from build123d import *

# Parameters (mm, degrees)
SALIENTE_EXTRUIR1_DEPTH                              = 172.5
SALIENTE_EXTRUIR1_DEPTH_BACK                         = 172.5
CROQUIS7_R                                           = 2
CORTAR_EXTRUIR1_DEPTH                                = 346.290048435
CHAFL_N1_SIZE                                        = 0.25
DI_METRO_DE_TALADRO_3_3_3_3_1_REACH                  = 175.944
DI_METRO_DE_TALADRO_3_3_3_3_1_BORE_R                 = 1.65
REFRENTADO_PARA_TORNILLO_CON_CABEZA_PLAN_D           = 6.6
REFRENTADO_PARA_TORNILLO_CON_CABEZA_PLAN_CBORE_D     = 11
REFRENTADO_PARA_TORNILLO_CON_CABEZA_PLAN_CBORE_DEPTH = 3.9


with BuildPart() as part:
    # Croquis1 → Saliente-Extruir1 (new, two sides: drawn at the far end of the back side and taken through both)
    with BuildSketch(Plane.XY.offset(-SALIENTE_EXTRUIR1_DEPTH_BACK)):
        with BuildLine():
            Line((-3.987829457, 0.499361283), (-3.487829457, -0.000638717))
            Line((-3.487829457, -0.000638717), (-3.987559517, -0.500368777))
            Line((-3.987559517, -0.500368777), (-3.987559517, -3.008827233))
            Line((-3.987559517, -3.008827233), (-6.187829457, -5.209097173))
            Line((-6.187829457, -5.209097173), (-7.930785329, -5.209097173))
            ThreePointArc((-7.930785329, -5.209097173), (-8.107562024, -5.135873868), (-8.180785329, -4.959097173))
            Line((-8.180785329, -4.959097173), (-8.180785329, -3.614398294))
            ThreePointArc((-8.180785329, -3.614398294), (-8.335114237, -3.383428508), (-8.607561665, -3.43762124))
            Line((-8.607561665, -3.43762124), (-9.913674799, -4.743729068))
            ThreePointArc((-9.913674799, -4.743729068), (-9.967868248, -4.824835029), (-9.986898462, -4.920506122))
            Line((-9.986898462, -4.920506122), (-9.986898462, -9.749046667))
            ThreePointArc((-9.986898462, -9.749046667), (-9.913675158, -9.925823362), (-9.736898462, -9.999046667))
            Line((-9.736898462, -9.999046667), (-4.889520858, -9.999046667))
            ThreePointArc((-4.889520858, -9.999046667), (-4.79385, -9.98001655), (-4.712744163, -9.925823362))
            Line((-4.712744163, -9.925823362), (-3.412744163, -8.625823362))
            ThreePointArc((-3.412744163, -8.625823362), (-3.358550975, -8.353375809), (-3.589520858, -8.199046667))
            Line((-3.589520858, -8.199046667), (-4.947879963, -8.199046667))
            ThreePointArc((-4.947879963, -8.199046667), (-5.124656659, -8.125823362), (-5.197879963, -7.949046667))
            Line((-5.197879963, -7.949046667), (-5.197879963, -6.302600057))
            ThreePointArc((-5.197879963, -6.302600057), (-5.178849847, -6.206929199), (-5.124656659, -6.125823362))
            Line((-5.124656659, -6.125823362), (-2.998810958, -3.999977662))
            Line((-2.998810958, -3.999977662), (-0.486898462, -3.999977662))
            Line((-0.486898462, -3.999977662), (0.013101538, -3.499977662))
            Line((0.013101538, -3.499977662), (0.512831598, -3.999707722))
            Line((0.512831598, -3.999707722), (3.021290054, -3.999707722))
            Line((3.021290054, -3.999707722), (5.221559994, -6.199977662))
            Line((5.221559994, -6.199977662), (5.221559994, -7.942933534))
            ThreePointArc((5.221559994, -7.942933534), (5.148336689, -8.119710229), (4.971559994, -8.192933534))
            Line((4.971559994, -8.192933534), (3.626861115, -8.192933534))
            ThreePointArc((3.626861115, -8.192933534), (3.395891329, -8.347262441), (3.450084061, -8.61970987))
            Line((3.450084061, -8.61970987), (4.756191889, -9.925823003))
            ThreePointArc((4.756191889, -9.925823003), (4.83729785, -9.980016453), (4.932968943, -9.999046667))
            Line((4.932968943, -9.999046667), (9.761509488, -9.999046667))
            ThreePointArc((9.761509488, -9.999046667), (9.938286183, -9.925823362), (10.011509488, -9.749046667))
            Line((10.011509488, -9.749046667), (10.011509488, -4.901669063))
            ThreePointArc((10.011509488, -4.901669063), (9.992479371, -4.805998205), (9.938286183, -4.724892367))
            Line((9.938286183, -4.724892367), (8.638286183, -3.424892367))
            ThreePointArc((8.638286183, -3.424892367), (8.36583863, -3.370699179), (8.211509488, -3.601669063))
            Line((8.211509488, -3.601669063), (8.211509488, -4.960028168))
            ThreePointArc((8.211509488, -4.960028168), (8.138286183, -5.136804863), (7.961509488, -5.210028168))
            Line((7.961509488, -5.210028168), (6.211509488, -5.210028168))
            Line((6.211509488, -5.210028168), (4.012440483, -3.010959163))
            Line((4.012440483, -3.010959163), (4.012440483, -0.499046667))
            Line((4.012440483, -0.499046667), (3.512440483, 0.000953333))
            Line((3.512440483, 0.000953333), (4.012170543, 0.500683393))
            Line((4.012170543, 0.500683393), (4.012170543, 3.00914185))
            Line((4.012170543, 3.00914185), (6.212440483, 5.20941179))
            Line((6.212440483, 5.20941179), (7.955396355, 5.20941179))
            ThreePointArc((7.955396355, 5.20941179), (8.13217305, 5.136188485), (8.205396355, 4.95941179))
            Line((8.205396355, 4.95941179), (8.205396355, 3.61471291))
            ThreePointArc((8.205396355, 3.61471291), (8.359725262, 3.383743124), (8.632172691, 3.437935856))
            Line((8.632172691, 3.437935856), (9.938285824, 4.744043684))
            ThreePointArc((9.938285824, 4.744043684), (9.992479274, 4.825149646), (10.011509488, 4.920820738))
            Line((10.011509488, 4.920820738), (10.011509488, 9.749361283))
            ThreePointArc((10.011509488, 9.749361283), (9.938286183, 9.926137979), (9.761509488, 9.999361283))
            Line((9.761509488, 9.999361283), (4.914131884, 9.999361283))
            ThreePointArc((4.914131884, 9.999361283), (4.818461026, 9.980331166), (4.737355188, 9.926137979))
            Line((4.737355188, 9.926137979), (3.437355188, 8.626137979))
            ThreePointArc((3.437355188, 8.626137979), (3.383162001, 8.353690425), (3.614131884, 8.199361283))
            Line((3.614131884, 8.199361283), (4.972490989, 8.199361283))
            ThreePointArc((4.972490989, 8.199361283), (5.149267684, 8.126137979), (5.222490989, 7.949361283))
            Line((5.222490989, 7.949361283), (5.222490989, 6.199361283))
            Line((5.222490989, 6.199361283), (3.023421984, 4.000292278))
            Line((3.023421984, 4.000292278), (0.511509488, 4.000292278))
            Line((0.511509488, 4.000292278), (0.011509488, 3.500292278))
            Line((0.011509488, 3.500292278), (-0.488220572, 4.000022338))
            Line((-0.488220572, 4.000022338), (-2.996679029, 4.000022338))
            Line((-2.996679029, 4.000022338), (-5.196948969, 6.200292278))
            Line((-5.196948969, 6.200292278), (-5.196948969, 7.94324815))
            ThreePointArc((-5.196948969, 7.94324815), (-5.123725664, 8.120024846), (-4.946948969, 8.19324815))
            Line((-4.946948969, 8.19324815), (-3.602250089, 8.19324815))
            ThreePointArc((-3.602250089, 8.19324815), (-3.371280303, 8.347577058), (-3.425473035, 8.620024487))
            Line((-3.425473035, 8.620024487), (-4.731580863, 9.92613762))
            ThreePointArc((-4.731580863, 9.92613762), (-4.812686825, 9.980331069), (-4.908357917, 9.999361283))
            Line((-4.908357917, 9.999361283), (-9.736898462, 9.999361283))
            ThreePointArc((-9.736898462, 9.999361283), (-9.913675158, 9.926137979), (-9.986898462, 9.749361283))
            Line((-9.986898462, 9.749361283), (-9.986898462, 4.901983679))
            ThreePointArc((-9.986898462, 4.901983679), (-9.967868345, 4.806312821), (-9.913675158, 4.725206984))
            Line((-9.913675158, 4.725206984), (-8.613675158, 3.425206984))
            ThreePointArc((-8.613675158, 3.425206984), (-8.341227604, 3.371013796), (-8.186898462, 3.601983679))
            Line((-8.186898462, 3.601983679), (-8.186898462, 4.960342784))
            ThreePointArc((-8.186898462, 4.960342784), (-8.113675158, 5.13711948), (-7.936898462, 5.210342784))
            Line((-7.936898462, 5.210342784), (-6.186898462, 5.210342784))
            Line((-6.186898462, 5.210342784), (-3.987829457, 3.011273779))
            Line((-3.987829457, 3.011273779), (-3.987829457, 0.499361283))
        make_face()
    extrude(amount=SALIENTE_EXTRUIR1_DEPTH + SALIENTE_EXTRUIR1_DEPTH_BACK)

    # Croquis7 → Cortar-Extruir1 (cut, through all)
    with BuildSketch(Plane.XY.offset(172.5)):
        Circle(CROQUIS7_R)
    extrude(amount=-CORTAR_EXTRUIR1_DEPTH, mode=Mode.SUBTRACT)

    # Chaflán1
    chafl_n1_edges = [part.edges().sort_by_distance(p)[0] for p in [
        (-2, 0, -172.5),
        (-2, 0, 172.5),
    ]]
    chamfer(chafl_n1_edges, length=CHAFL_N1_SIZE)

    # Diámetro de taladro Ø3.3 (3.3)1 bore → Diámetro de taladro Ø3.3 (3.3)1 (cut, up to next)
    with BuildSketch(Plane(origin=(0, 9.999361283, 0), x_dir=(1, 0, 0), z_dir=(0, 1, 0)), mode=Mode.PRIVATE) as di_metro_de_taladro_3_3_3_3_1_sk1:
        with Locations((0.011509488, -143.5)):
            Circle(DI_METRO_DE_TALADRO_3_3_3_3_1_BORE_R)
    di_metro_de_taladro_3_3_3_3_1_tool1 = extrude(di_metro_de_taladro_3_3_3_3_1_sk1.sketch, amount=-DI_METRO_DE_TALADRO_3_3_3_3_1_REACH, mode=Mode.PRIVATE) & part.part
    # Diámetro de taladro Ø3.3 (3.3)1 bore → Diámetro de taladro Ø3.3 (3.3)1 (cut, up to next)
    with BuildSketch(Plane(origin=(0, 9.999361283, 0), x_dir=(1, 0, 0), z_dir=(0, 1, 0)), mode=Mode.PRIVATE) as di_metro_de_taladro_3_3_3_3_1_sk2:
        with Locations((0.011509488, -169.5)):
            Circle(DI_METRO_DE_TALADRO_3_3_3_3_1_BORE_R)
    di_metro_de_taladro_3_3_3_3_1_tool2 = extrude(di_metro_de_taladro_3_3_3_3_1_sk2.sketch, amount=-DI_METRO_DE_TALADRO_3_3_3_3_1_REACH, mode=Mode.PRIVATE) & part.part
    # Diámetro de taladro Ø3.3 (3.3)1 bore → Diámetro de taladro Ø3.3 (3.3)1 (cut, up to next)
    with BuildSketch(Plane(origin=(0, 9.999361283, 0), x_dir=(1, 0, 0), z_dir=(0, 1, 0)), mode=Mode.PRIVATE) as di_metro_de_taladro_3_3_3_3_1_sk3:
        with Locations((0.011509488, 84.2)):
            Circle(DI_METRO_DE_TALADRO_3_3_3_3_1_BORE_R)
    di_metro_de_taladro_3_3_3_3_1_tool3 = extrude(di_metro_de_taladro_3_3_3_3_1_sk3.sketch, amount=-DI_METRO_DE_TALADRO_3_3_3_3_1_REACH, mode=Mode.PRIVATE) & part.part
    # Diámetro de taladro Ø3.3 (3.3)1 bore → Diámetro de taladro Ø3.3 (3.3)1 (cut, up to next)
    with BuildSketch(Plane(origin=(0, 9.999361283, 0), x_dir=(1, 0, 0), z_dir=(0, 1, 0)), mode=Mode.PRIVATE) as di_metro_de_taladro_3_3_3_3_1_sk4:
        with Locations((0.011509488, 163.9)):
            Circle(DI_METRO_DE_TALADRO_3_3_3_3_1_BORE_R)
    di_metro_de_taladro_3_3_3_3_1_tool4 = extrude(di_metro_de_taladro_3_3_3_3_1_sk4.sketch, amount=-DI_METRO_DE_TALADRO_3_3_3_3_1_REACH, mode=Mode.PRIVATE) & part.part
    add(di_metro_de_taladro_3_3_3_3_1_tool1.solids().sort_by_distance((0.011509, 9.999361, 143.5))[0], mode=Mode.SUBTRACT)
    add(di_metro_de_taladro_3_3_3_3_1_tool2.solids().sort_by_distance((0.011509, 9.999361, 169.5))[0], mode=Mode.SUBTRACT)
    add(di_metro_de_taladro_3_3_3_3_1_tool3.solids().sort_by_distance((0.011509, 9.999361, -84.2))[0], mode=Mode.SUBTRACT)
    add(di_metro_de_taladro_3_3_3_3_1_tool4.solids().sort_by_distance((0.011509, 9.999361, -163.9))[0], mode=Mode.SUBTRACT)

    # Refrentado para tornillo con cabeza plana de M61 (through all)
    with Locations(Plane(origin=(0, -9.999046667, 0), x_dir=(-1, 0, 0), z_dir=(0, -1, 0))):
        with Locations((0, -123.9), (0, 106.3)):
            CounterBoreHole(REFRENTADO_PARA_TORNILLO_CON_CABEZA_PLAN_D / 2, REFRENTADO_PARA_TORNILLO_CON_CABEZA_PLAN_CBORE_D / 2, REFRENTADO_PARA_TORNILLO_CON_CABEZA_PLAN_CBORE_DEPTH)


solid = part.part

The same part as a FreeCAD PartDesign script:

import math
import FreeCAD as App
import Part
import Sketcher
from FreeCAD import Vector
Q = App.Units.Quantity


def edges_at(feature, points):
    """Names of the edges that pass closest to the given points."""
    edges = feature.Shape.Edges
    near = lambda p: min(range(len(edges)), key=lambda i: edges[i].distToShape(Part.Vertex(*p))[0])
    return sorted({f"Edge{near(p) + 1}" for p in points})

doc = App.newDocument("Part")
body = doc.addObject("PartDesign::Body", "Body")

# Sketch on XY plane
sketch1 = doc.addObject("Sketcher::SketchObject", "Sketch")
body.addObject(sketch1)
sketch1.AttachmentSupport = (doc.XY_Plane, [""])
sketch1.MapMode = "FlatFace"
sketch1.addGeometry(Part.LineSegment(Vector(-3.987829, 0.499361, 0), Vector(-3.487829, -0.000639, 0)), False)
sketch1.addGeometry(Part.LineSegment(Vector(-3.487829, -0.000639, 0), Vector(-3.98756, -0.500369, 0)), False)
sketch1.addGeometry(Part.LineSegment(Vector(-3.98756, -0.500369, 0), Vector(-3.98756, -3.008827, 0)), False)
sketch1.addGeometry(Part.LineSegment(Vector(-3.98756, -3.008827, 0), Vector(-6.187829, -5.209097, 0)), False)
sketch1.addGeometry(Part.LineSegment(Vector(-6.187829, -5.209097, 0), Vector(-7.930785, -5.209097, 0)), False)
sketch1.addGeometry(Part.ArcOfCircle(Part.Circle(Vector(-7.930785, -4.959097, 0), Vector(0, 0, 1), 0.25), math.radians(-180), math.radians(-90)), False)
sketch1.addGeometry(Part.LineSegment(Vector(-8.180785, -4.959097, 0), Vector(-8.180785, -3.614398, 0)), False)
sketch1.addGeometry(Part.ArcOfCircle(Part.Circle(Vector(-8.430785, -3.614398, 0), Vector(0, 0, 1), 0.25), math.radians(0), math.radians(134.999884)), False)
sketch1.addGeometry(Part.LineSegment(Vector(-8.607562, -3.437621, 0), Vector(-9.913675, -4.743729, 0)), False)
sketch1.addGeometry(Part.ArcOfCircle(Part.Circle(Vector(-9.736898, -4.920506, 0), Vector(0, 0, 1), 0.25), math.radians(134.999884), math.radians(180)), False)
sketch1.addGeometry(Part.LineSegment(Vector(-9.986898, -4.920506, 0), Vector(-9.986898, -9.749047, 0)), False)
sketch1.addGeometry(Part.ArcOfCircle(Part.Circle(Vector(-9.736898, -9.749047, 0), Vector(0, 0, 1), 0.25), math.radians(180), math.radians(270)), False)
sketch1.addGeometry(Part.LineSegment(Vector(-9.736898, -9.999047, 0), Vector(-4.889521, -9.999047, 0)), False)
sketch1.addGeometry(Part.ArcOfCircle(Part.Circle(Vector(-4.889521, -9.749047, 0), Vector(0, 0, 1), 0.25), math.radians(-90), math.radians(-45)), False)
sketch1.addGeometry(Part.LineSegment(Vector(-4.712744, -9.925823, 0), Vector(-3.412744, -8.625823, 0)), False)
sketch1.addGeometry(Part.ArcOfCircle(Part.Circle(Vector(-3.589521, -8.449047, 0), Vector(0, 0, 1), 0.25), math.radians(-45), math.radians(90)), False)
sketch1.addGeometry(Part.LineSegment(Vector(-3.589521, -8.199047, 0), Vector(-4.94788, -8.199047, 0)), False)
sketch1.addGeometry(Part.ArcOfCircle(Part.Circle(Vector(-4.94788, -7.949047, 0), Vector(0, 0, 1), 0.25), math.radians(180), math.radians(270)), False)
sketch1.addGeometry(Part.LineSegment(Vector(-5.19788, -7.949047, 0), Vector(-5.19788, -6.3026, 0)), False)
sketch1.addGeometry(Part.ArcOfCircle(Part.Circle(Vector(-4.94788, -6.3026, 0), Vector(0, 0, 1), 0.25), math.radians(135), math.radians(180.000001)), False)
sketch1.addGeometry(Part.LineSegment(Vector(-5.124657, -6.125823, 0), Vector(-2.998811, -3.999978, 0)), False)
sketch1.addGeometry(Part.LineSegment(Vector(-2.998811, -3.999978, 0), Vector(-0.486898, -3.999978, 0)), False)
sketch1.addGeometry(Part.LineSegment(Vector(-0.486898, -3.999978, 0), Vector(0.013102, -3.499978, 0)), False)
sketch1.addGeometry(Part.LineSegment(Vector(0.013102, -3.499978, 0), Vector(0.512832, -3.999708, 0)), False)
sketch1.addGeometry(Part.LineSegment(Vector(0.512832, -3.999708, 0), Vector(3.02129, -3.999708, 0)), False)
sketch1.addGeometry(Part.LineSegment(Vector(3.02129, -3.999708, 0), Vector(5.22156, -6.199978, 0)), False)
sketch1.addGeometry(Part.LineSegment(Vector(5.22156, -6.199978, 0), Vector(5.22156, -7.942934, 0)), False)
sketch1.addGeometry(Part.ArcOfCircle(Part.Circle(Vector(4.97156, -7.942934, 0), Vector(0, 0, 1), 0.25), math.radians(-90), math.radians(0)), False)
sketch1.addGeometry(Part.LineSegment(Vector(4.97156, -8.192934, 0), Vector(3.626861, -8.192934, 0)), False)
sketch1.addGeometry(Part.ArcOfCircle(Part.Circle(Vector(3.626861, -8.442934, 0), Vector(0, 0, 1), 0.25), math.radians(90), math.radians(224.999884)), False)
sketch1.addGeometry(Part.LineSegment(Vector(3.450084, -8.61971, 0), Vector(4.756192, -9.925823, 0)), False)
sketch1.addGeometry(Part.ArcOfCircle(Part.Circle(Vector(4.932969, -9.749047, 0), Vector(0, 0, 1), 0.25), math.radians(-135.000117), math.radians(-90)), False)
sketch1.addGeometry(Part.LineSegment(Vector(4.932969, -9.999047, 0), Vector(9.761509, -9.999047, 0)), False)
sketch1.addGeometry(Part.ArcOfCircle(Part.Circle(Vector(9.761509, -9.749047, 0), Vector(0, 0, 1), 0.25), math.radians(-90), math.radians(0)), False)
sketch1.addGeometry(Part.LineSegment(Vector(10.011509, -9.749047, 0), Vector(10.011509, -4.901669, 0)), False)
sketch1.addGeometry(Part.ArcOfCircle(Part.Circle(Vector(9.761509, -4.901669, 0), Vector(0, 0, 1), 0.25), math.radians(0), math.radians(45)), False)
sketch1.addGeometry(Part.LineSegment(Vector(9.938286, -4.724892, 0), Vector(8.638286, -3.424892, 0)), False)
sketch1.addGeometry(Part.ArcOfCircle(Part.Circle(Vector(8.461509, -3.601669, 0), Vector(0, 0, 1), 0.25), math.radians(45), math.radians(180)), False)
sketch1.addGeometry(Part.LineSegment(Vector(8.211509, -3.601669, 0), Vector(8.211509, -4.960028, 0)), False)
sketch1.addGeometry(Part.ArcOfCircle(Part.Circle(Vector(7.961509, -4.960028, 0), Vector(0, 0, 1), 0.25), math.radians(-90), math.radians(0)), False)
sketch1.addGeometry(Part.LineSegment(Vector(7.961509, -5.210028, 0), Vector(6.211509, -5.210028, 0)), False)
sketch1.addGeometry(Part.LineSegment(Vector(6.211509, -5.210028, 0), Vector(4.01244, -3.010959, 0)), False)
sketch1.addGeometry(Part.LineSegment(Vector(4.01244, -3.010959, 0), Vector(4.01244, -0.499047, 0)), False)
sketch1.addGeometry(Part.LineSegment(Vector(4.01244, -0.499047, 0), Vector(3.51244, 0.000953, 0)), False)
sketch1.addGeometry(Part.LineSegment(Vector(3.51244, 0.000953, 0), Vector(4.012171, 0.500683, 0)), False)
sketch1.addGeometry(Part.LineSegment(Vector(4.012171, 0.500683, 0), Vector(4.012171, 3.009142, 0)), False)
sketch1.addGeometry(Part.LineSegment(Vector(4.012171, 3.009142, 0), Vector(6.21244, 5.209412, 0)), False)
sketch1.addGeometry(Part.LineSegment(Vector(6.21244, 5.209412, 0), Vector(7.955396, 5.209412, 0)), False)
sketch1.addGeometry(Part.ArcOfCircle(Part.Circle(Vector(7.955396, 4.959412, 0), Vector(0, 0, 1), 0.25), math.radians(0), math.radians(90)), False)
sketch1.addGeometry(Part.LineSegment(Vector(8.205396, 4.959412, 0), Vector(8.205396, 3.614713, 0)), False)
sketch1.addGeometry(Part.ArcOfCircle(Part.Circle(Vector(8.455396, 3.614713, 0), Vector(0, 0, 1), 0.25), math.radians(180), math.radians(314.999884)), False)
sketch1.addGeometry(Part.LineSegment(Vector(8.632173, 3.437936, 0), Vector(9.938286, 4.744044, 0)), False)
sketch1.addGeometry(Part.ArcOfCircle(Part.Circle(Vector(9.761509, 4.920821, 0), Vector(0, 0, 1), 0.25), math.radians(-45.000117), math.radians(0)), False)
sketch1.addGeometry(Part.LineSegment(Vector(10.011509, 4.920821, 0), Vector(10.011509, 9.749361, 0)), False)
sketch1.addGeometry(Part.ArcOfCircle(Part.Circle(Vector(9.761509, 9.749361, 0), Vector(0, 0, 1), 0.25), math.radians(0), math.radians(90)), False)
sketch1.addGeometry(Part.LineSegment(Vector(9.761509, 9.999361, 0), Vector(4.914132, 9.999361, 0)), False)
sketch1.addGeometry(Part.ArcOfCircle(Part.Circle(Vector(4.914132, 9.749361, 0), Vector(0, 0, 1), 0.25), math.radians(90), math.radians(134.999999)), False)
sketch1.addGeometry(Part.LineSegment(Vector(4.737355, 9.926138, 0), Vector(3.437355, 8.626138, 0)), False)
sketch1.addGeometry(Part.ArcOfCircle(Part.Circle(Vector(3.614132, 8.449361, 0), Vector(0, 0, 1), 0.25), math.radians(135), math.radians(270)), False)
sketch1.addGeometry(Part.LineSegment(Vector(3.614132, 8.199361, 0), Vector(4.972491, 8.199361, 0)), False)
sketch1.addGeometry(Part.ArcOfCircle(Part.Circle(Vector(4.972491, 7.949361, 0), Vector(0, 0, 1), 0.25), math.radians(0), math.radians(90)), False)
sketch1.addGeometry(Part.LineSegment(Vector(5.222491, 7.949361, 0), Vector(5.222491, 6.199361, 0)), False)
sketch1.addGeometry(Part.LineSegment(Vector(5.222491, 6.199361, 0), Vector(3.023422, 4.000292, 0)), False)
sketch1.addGeometry(Part.LineSegment(Vector(3.023422, 4.000292, 0), Vector(0.511509, 4.000292, 0)), False)
sketch1.addGeometry(Part.LineSegment(Vector(0.511509, 4.000292, 0), Vector(0.011509, 3.500292, 0)), False)
sketch1.addGeometry(Part.LineSegment(Vector(0.011509, 3.500292, 0), Vector(-0.488221, 4.000022, 0)), False)
sketch1.addGeometry(Part.LineSegment(Vector(-0.488221, 4.000022, 0), Vector(-2.996679, 4.000022, 0)), False)
sketch1.addGeometry(Part.LineSegment(Vector(-2.996679, 4.000022, 0), Vector(-5.196949, 6.200292, 0)), False)
sketch1.addGeometry(Part.LineSegment(Vector(-5.196949, 6.200292, 0), Vector(-5.196949, 7.943248, 0)), False)
sketch1.addGeometry(Part.ArcOfCircle(Part.Circle(Vector(-4.946949, 7.943248, 0), Vector(0, 0, 1), 0.25), math.radians(90), math.radians(180)), False)
sketch1.addGeometry(Part.LineSegment(Vector(-4.946949, 8.193248, 0), Vector(-3.60225, 8.193248, 0)), False)
sketch1.addGeometry(Part.ArcOfCircle(Part.Circle(Vector(-3.60225, 8.443248, 0), Vector(0, 0, 1), 0.25), math.radians(-90), math.radians(44.999884)), False)
sketch1.addGeometry(Part.LineSegment(Vector(-3.425473, 8.620024, 0), Vector(-4.731581, 9.926138, 0)), False)
sketch1.addGeometry(Part.ArcOfCircle(Part.Circle(Vector(-4.908358, 9.749361, 0), Vector(0, 0, 1), 0.25), math.radians(44.999884), math.radians(90)), False)
sketch1.addGeometry(Part.LineSegment(Vector(-4.908358, 9.999361, 0), Vector(-9.736898, 9.999361, 0)), False)
sketch1.addGeometry(Part.ArcOfCircle(Part.Circle(Vector(-9.736898, 9.749361, 0), Vector(0, 0, 1), 0.25), math.radians(90), math.radians(180)), False)
sketch1.addGeometry(Part.LineSegment(Vector(-9.986898, 9.749361, 0), Vector(-9.986898, 4.901984, 0)), False)
sketch1.addGeometry(Part.ArcOfCircle(Part.Circle(Vector(-9.736898, 4.901984, 0), Vector(0, 0, 1), 0.25), math.radians(-180), math.radians(-135.000001)), False)
sketch1.addGeometry(Part.LineSegment(Vector(-9.913675, 4.725207, 0), Vector(-8.613675, 3.425207, 0)), False)
sketch1.addGeometry(Part.ArcOfCircle(Part.Circle(Vector(-8.436898, 3.601984, 0), Vector(0, 0, 1), 0.25), math.radians(-135), math.radians(0)), False)
sketch1.addGeometry(Part.LineSegment(Vector(-8.186898, 3.601984, 0), Vector(-8.186898, 4.960343, 0)), False)
sketch1.addGeometry(Part.ArcOfCircle(Part.Circle(Vector(-7.936898, 4.960343, 0), Vector(0, 0, 1), 0.25), math.radians(90), math.radians(180)), False)
sketch1.addGeometry(Part.LineSegment(Vector(-7.936898, 5.210343, 0), Vector(-6.186898, 5.210343, 0)), False)
sketch1.addGeometry(Part.LineSegment(Vector(-6.186898, 5.210343, 0), Vector(-3.987829, 3.011274, 0)), False)
sketch1.addGeometry(Part.LineSegment(Vector(-3.987829, 3.011274, 0), Vector(-3.987829, 0.499361, 0)), False)
sketch1.addConstraint(Sketcher.Constraint("Coincident", 0, 2, 1, 1))
sketch1.addConstraint(Sketcher.Constraint("Coincident", 1, 2, 2, 1))
sketch1.addConstraint(Sketcher.Constraint("Coincident", 2, 2, 3, 1))
sketch1.addConstraint(Sketcher.Constraint("Coincident", 3, 2, 4, 1))
sketch1.addConstraint(Sketcher.Constraint("Tangent", 4, 2, 5, 2))
sketch1.addConstraint(Sketcher.Constraint("Tangent", 5, 1, 6, 1))
sketch1.addConstraint(Sketcher.Constraint("Tangent", 6, 2, 7, 1))
sketch1.addConstraint(Sketcher.Constraint("Tangent", 7, 2, 8, 1))
sketch1.addConstraint(Sketcher.Constraint("Tangent", 8, 2, 9, 1))
sketch1.addConstraint(Sketcher.Constraint("Tangent", 9, 2, 10, 1))
sketch1.addConstraint(Sketcher.Constraint("Tangent", 10, 2, 11, 1))
sketch1.addConstraint(Sketcher.Constraint("Tangent", 11, 2, 12, 1))
sketch1.addConstraint(Sketcher.Constraint("Tangent", 12, 2, 13, 1))
sketch1.addConstraint(Sketcher.Constraint("Tangent", 13, 2, 14, 1))
sketch1.addConstraint(Sketcher.Constraint("Tangent", 14, 2, 15, 1))
sketch1.addConstraint(Sketcher.Constraint("Tangent", 15, 2, 16, 1))
sketch1.addConstraint(Sketcher.Constraint("Tangent", 16, 2, 17, 2))
sketch1.addConstraint(Sketcher.Constraint("Tangent", 17, 1, 18, 1))
sketch1.addConstraint(Sketcher.Constraint("Tangent", 18, 2, 19, 2))
sketch1.addConstraint(Sketcher.Constraint("Tangent", 19, 1, 20, 1))
sketch1.addConstraint(Sketcher.Constraint("Coincident", 20, 2, 21, 1))
sketch1.addConstraint(Sketcher.Constraint("Coincident", 21, 2, 22, 1))
sketch1.addConstraint(Sketcher.Constraint("Coincident", 22, 2, 23, 1))
sketch1.addConstraint(Sketcher.Constraint("Coincident", 23, 2, 24, 1))
sketch1.addConstraint(Sketcher.Constraint("Coincident", 24, 2, 25, 1))
sketch1.addConstraint(Sketcher.Constraint("Coincident", 25, 2, 26, 1))
sketch1.addConstraint(Sketcher.Constraint("Tangent", 26, 2, 27, 2))
sketch1.addConstraint(Sketcher.Constraint("Tangent", 27, 1, 28, 1))
sketch1.addConstraint(Sketcher.Constraint("Tangent", 28, 2, 29, 1))
sketch1.addConstraint(Sketcher.Constraint("Tangent", 29, 2, 30, 1))
sketch1.addConstraint(Sketcher.Constraint("Tangent", 30, 2, 31, 1))
sketch1.addConstraint(Sketcher.Constraint("Tangent", 31, 2, 32, 1))
sketch1.addConstraint(Sketcher.Constraint("Tangent", 32, 2, 33, 1))
sketch1.addConstraint(Sketcher.Constraint("Tangent", 33, 2, 34, 1))
sketch1.addConstraint(Sketcher.Constraint("Tangent", 34, 2, 35, 1))
sketch1.addConstraint(Sketcher.Constraint("Tangent", 35, 2, 36, 1))
sketch1.addConstraint(Sketcher.Constraint("Tangent", 36, 2, 37, 1))
sketch1.addConstraint(Sketcher.Constraint("Tangent", 37, 2, 38, 1))
sketch1.addConstraint(Sketcher.Constraint("Tangent", 38, 2, 39, 2))
sketch1.addConstraint(Sketcher.Constraint("Tangent", 39, 1, 40, 1))
sketch1.addConstraint(Sketcher.Constraint("Coincident", 40, 2, 41, 1))
sketch1.addConstraint(Sketcher.Constraint("Coincident", 41, 2, 42, 1))
sketch1.addConstraint(Sketcher.Constraint("Coincident", 42, 2, 43, 1))
sketch1.addConstraint(Sketcher.Constraint("Coincident", 43, 2, 44, 1))
sketch1.addConstraint(Sketcher.Constraint("Coincident", 44, 2, 45, 1))
sketch1.addConstraint(Sketcher.Constraint("Coincident", 45, 2, 46, 1))
sketch1.addConstraint(Sketcher.Constraint("Coincident", 46, 2, 47, 1))
sketch1.addConstraint(Sketcher.Constraint("Tangent", 47, 2, 48, 2))
sketch1.addConstraint(Sketcher.Constraint("Tangent", 48, 1, 49, 1))
sketch1.addConstraint(Sketcher.Constraint("Tangent", 49, 2, 50, 1))
sketch1.addConstraint(Sketcher.Constraint("Tangent", 50, 2, 51, 1))
sketch1.addConstraint(Sketcher.Constraint("Tangent", 51, 2, 52, 1))
sketch1.addConstraint(Sketcher.Constraint("Tangent", 52, 2, 53, 1))
sketch1.addConstraint(Sketcher.Constraint("Tangent", 53, 2, 54, 1))
sketch1.addConstraint(Sketcher.Constraint("Tangent", 54, 2, 55, 1))
sketch1.addConstraint(Sketcher.Constraint("Tangent", 55, 2, 56, 1))
sketch1.addConstraint(Sketcher.Constraint("Tangent", 56, 2, 57, 1))
sketch1.addConstraint(Sketcher.Constraint("Tangent", 57, 2, 58, 1))
sketch1.addConstraint(Sketcher.Constraint("Tangent", 58, 2, 59, 1))
sketch1.addConstraint(Sketcher.Constraint("Tangent", 59, 2, 60, 2))
sketch1.addConstraint(Sketcher.Constraint("Tangent", 60, 1, 61, 1))
sketch1.addConstraint(Sketcher.Constraint("Coincident", 61, 2, 62, 1))
sketch1.addConstraint(Sketcher.Constraint("Coincident", 62, 2, 63, 1))
sketch1.addConstraint(Sketcher.Constraint("Coincident", 63, 2, 64, 1))
sketch1.addConstraint(Sketcher.Constraint("Coincident", 64, 2, 65, 1))
sketch1.addConstraint(Sketcher.Constraint("Coincident", 65, 2, 66, 1))
sketch1.addConstraint(Sketcher.Constraint("Coincident", 66, 2, 67, 1))
sketch1.addConstraint(Sketcher.Constraint("Coincident", 67, 2, 68, 1))
sketch1.addConstraint(Sketcher.Constraint("Tangent", 68, 2, 69, 2))
sketch1.addConstraint(Sketcher.Constraint("Tangent", 69, 1, 70, 1))
sketch1.addConstraint(Sketcher.Constraint("Tangent", 70, 2, 71, 1))
sketch1.addConstraint(Sketcher.Constraint("Tangent", 71, 2, 72, 1))
sketch1.addConstraint(Sketcher.Constraint("Tangent", 72, 2, 73, 1))
sketch1.addConstraint(Sketcher.Constraint("Tangent", 73, 2, 74, 1))
sketch1.addConstraint(Sketcher.Constraint("Tangent", 74, 2, 75, 1))
sketch1.addConstraint(Sketcher.Constraint("Tangent", 75, 2, 76, 1))
sketch1.addConstraint(Sketcher.Constraint("Tangent", 76, 2, 77, 1))
sketch1.addConstraint(Sketcher.Constraint("Tangent", 77, 2, 78, 1))
sketch1.addConstraint(Sketcher.Constraint("Tangent", 78, 2, 79, 1))
sketch1.addConstraint(Sketcher.Constraint("Tangent", 79, 2, 80, 1))
sketch1.addConstraint(Sketcher.Constraint("Tangent", 80, 2, 81, 2))
sketch1.addConstraint(Sketcher.Constraint("Tangent", 81, 1, 82, 1))
sketch1.addConstraint(Sketcher.Constraint("Coincident", 82, 2, 83, 1))
sketch1.addConstraint(Sketcher.Constraint("Coincident", 83, 2, 84, 1))
sketch1.addConstraint(Sketcher.Constraint("Coincident", 84, 2, 0, 1))
sketch1.addConstraint(Sketcher.Constraint("Vertical", 2))
sketch1.addConstraint(Sketcher.Constraint("Horizontal", 4))
sketch1.addConstraint(Sketcher.Constraint("Vertical", 6))
sketch1.addConstraint(Sketcher.Constraint("Vertical", 10))
sketch1.addConstraint(Sketcher.Constraint("Horizontal", 12))
sketch1.addConstraint(Sketcher.Constraint("Horizontal", 16))
sketch1.addConstraint(Sketcher.Constraint("Vertical", 18))
sketch1.addConstraint(Sketcher.Constraint("Horizontal", 21))
sketch1.addConstraint(Sketcher.Constraint("Horizontal", 24))
sketch1.addConstraint(Sketcher.Constraint("Vertical", 26))
sketch1.addConstraint(Sketcher.Constraint("Horizontal", 28))
sketch1.addConstraint(Sketcher.Constraint("Horizontal", 32))
sketch1.addConstraint(Sketcher.Constraint("Vertical", 34))
sketch1.addConstraint(Sketcher.Constraint("Vertical", 38))
sketch1.addConstraint(Sketcher.Constraint("Horizontal", 40))
sketch1.addConstraint(Sketcher.Constraint("Vertical", 42))
sketch1.addConstraint(Sketcher.Constraint("Vertical", 45))
sketch1.addConstraint(Sketcher.Constraint("Horizontal", 47))
sketch1.addConstraint(Sketcher.Constraint("Vertical", 49))
sketch1.addConstraint(Sketcher.Constraint("Vertical", 53))
sketch1.addConstraint(Sketcher.Constraint("Horizontal", 55))
sketch1.addConstraint(Sketcher.Constraint("Horizontal", 59))
sketch1.addConstraint(Sketcher.Constraint("Vertical", 61))
sketch1.addConstraint(Sketcher.Constraint("Horizontal", 63))
sketch1.addConstraint(Sketcher.Constraint("Horizontal", 66))
sketch1.addConstraint(Sketcher.Constraint("Vertical", 68))
sketch1.addConstraint(Sketcher.Constraint("Horizontal", 70))
sketch1.addConstraint(Sketcher.Constraint("Horizontal", 74))
sketch1.addConstraint(Sketcher.Constraint("Vertical", 76))
sketch1.addConstraint(Sketcher.Constraint("Vertical", 80))
sketch1.addConstraint(Sketcher.Constraint("Horizontal", 82))
sketch1.addConstraint(Sketcher.Constraint("Vertical", 84))
sketch1.addConstraint(Sketcher.Constraint("Equal", 5, 7))
sketch1.addConstraint(Sketcher.Constraint("Equal", 7, 9))
sketch1.addConstraint(Sketcher.Constraint("Equal", 9, 11))
sketch1.addConstraint(Sketcher.Constraint("Equal", 11, 13))
sketch1.addConstraint(Sketcher.Constraint("Equal", 13, 15))
sketch1.addConstraint(Sketcher.Constraint("Equal", 15, 17))
sketch1.addConstraint(Sketcher.Constraint("Equal", 17, 19))
sketch1.addConstraint(Sketcher.Constraint("Equal", 19, 27))
sketch1.addConstraint(Sketcher.Constraint("Equal", 27, 29))
sketch1.addConstraint(Sketcher.Constraint("Equal", 29, 31))
sketch1.addConstraint(Sketcher.Constraint("Equal", 31, 33))
sketch1.addConstraint(Sketcher.Constraint("Equal", 33, 35))
sketch1.addConstraint(Sketcher.Constraint("Equal", 35, 37))
sketch1.addConstraint(Sketcher.Constraint("Equal", 37, 39))
sketch1.addConstraint(Sketcher.Constraint("Equal", 39, 48))
sketch1.addConstraint(Sketcher.Constraint("Equal", 48, 50))
sketch1.addConstraint(Sketcher.Constraint("Equal", 50, 52))
sketch1.addConstraint(Sketcher.Constraint("Equal", 52, 54))
sketch1.addConstraint(Sketcher.Constraint("Equal", 54, 56))
sketch1.addConstraint(Sketcher.Constraint("Equal", 56, 58))
sketch1.addConstraint(Sketcher.Constraint("Equal", 58, 60))
sketch1.addConstraint(Sketcher.Constraint("Equal", 60, 69))
sketch1.addConstraint(Sketcher.Constraint("Equal", 69, 71))
sketch1.addConstraint(Sketcher.Constraint("Equal", 71, 73))
sketch1.addConstraint(Sketcher.Constraint("Equal", 73, 75))
sketch1.addConstraint(Sketcher.Constraint("Equal", 75, 77))
sketch1.addConstraint(Sketcher.Constraint("Equal", 77, 79))
sketch1.addConstraint(Sketcher.Constraint("Equal", 79, 81))
sketch1.addConstraint(Sketcher.Constraint("Perpendicular", 0, 1))
sketch1.addConstraint(Sketcher.Constraint("Parallel", 1, 3))
sketch1.addConstraint(Sketcher.Constraint("Parallel", 3, 14))
sketch1.addConstraint(Sketcher.Constraint("Parallel", 14, 20))
sketch1.addConstraint(Sketcher.Constraint("Parallel", 20, 22))
sketch1.addConstraint(Sketcher.Constraint("Perpendicular", 22, 23))
sketch1.addConstraint(Sketcher.Constraint("Parallel", 23, 25))
sketch1.addConstraint(Sketcher.Constraint("Perpendicular", 8, 30))
sketch1.addConstraint(Sketcher.Constraint("Parallel", 25, 36))
sketch1.addConstraint(Sketcher.Constraint("Parallel", 36, 41))
sketch1.addConstraint(Sketcher.Constraint("Parallel", 41, 43))
sketch1.addConstraint(Sketcher.Constraint("Perpendicular", 43, 44))
sketch1.addConstraint(Sketcher.Constraint("Parallel", 44, 46))
sketch1.addConstraint(Sketcher.Constraint("Perpendicular", 30, 51))
sketch1.addConstraint(Sketcher.Constraint("Parallel", 46, 57))
sketch1.addConstraint(Sketcher.Constraint("Parallel", 57, 62))
sketch1.addConstraint(Sketcher.Constraint("Parallel", 62, 64))
sketch1.addConstraint(Sketcher.Constraint("Perpendicular", 64, 65))
sketch1.addConstraint(Sketcher.Constraint("Parallel", 65, 67))
sketch1.addConstraint(Sketcher.Constraint("Perpendicular", 51, 72))
sketch1.addConstraint(Sketcher.Constraint("Parallel", 67, 78))
sketch1.addConstraint(Sketcher.Constraint("Parallel", 78, 83))
sketch1.addConstraint(Sketcher.Constraint("Horizontal", 13, 3, 31, 3))
sketch1.addConstraint(Sketcher.Constraint("Horizontal", 56, 3, 73, 3))
sketch1.addConstraint(Sketcher.Constraint("Horizontal", 13, 2, 30, 2))
sketch1.addConstraint(Sketcher.Constraint("Vertical", 35, 3, 52, 3))
sketch1.addConstraint(Sketcher.Constraint("Vertical", 11, 3, 75, 3))
sketch1.addConstraint(Sketcher.Constraint("Equal", 4, 47))
sketch1.addConstraint(Sketcher.Constraint("Equal", 12, 55))
sketch1.addConstraint(Sketcher.Constraint("Equal", 16, 59))
sketch1.addConstraint(Sketcher.Constraint("Equal", 21, 63))
sketch1.addConstraint(Sketcher.Constraint("Equal", 24, 66))
sketch1.addConstraint(Sketcher.Constraint("Equal", 28, 70))
sketch1.addConstraint(Sketcher.Constraint("Equal", 32, 74))
sketch1.addConstraint(Sketcher.Constraint("Equal", 40, 82))
sketch1.addConstraint(Sketcher.Constraint("Equal", 66, 2))
sketch1.addConstraint(Sketcher.Constraint("Equal", 70, 6))
sketch1.addConstraint(Sketcher.Constraint("Equal", 74, 10))
sketch1.addConstraint(Sketcher.Constraint("Equal", 47, 26))
sketch1.addConstraint(Sketcher.Constraint("Equal", 55, 34))
sketch1.addConstraint(Sketcher.Constraint("Equal", 59, 38))
sketch1.addConstraint(Sketcher.Constraint("Equal", 63, 42))
sketch1.addConstraint(Sketcher.Constraint("Equal", 2, 45))
sketch1.addConstraint(Sketcher.Constraint("Equal", 6, 49))
sketch1.addConstraint(Sketcher.Constraint("Equal", 10, 53))
sketch1.addConstraint(Sketcher.Constraint("Equal", 82, 61))
sketch1.addConstraint(Sketcher.Constraint("Equal", 26, 68))
sketch1.addConstraint(Sketcher.Constraint("Equal", 34, 76))
sketch1.addConstraint(Sketcher.Constraint("Equal", 38, 80))
sketch1.addConstraint(Sketcher.Constraint("Equal", 42, 84))
sketch1.addConstraint(Sketcher.Constraint("Equal", 0, 22))
sketch1.addConstraint(Sketcher.Constraint("Equal", 1, 23))
sketch1.addConstraint(Sketcher.Constraint("Equal", 3, 25))
sketch1.addConstraint(Sketcher.Constraint("Equal", 8, 30))
sketch1.addConstraint(Sketcher.Constraint("Equal", 14, 36))
sketch1.addConstraint(Sketcher.Constraint("Equal", 22, 43))
sketch1.addConstraint(Sketcher.Constraint("Equal", 23, 44))
sketch1.addConstraint(Sketcher.Constraint("Equal", 25, 46))
sketch1.addConstraint(Sketcher.Constraint("Equal", 36, 57))
sketch1.addConstraint(Sketcher.Constraint("Equal", 41, 62))
sketch1.addConstraint(Sketcher.Constraint("Equal", 43, 64))
sketch1.addConstraint(Sketcher.Constraint("Equal", 44, 65))
sketch1.addConstraint(Sketcher.Constraint("Equal", 46, 67))
sketch1.addConstraint(Sketcher.Constraint("Equal", 57, 78))
sketch1.addConstraint(Sketcher.Constraint("Angle", 0, Q("-45 deg")))
sketch1.addConstraint(Sketcher.Constraint("Radius", 5, 0.25))
sketch1.addConstraint(Sketcher.Constraint("DistanceX", 40, 2, 40, 1, 1.75))
sketch1.addConstraint(Sketcher.Constraint("DistanceX", 28, 2, 28, 1, 1.344699))
sketch1.addConstraint(Sketcher.Constraint("Distance", 20, 3.0064))
sketch1.addConstraint(Sketcher.Constraint("DistanceX", 16, 2, 16, 1, 1.358359))
sketch1.addConstraint(Sketcher.Constraint("DistanceX", 24, 1, 24, 2, 2.508458))
sketch1.addConstraint(Sketcher.Constraint("DistanceX", 32, 1, 32, 2, 4.828541))
sketch1.addConstraint(Sketcher.Constraint("DistanceY", 7, 3, -1, 1, 3.614398))
sketch1.addConstraint(Sketcher.Constraint("DistanceX", 9, 3, -1, 1, 9.736898))
sketch1.addConstraint(Sketcher.Constraint("DistanceY", 19, 3, -1, 1, 6.3026))
sketch1.addConstraint(Sketcher.Constraint("DistanceX", 79, 3, -1, 1, 8.436898))
sketch1.addConstraint(Sketcher.Constraint("DistanceX", 21, 2, -1, 1, 0.486898))
sketch1.addConstraint(Sketcher.Constraint("DistanceX", -1, 1, 22, 2, 0.013102))
sketch1.addConstraint(Sketcher.Constraint("Distance", 3, 3.111652))
sketch1.addConstraint(Sketcher.Constraint("DistanceX", 4, 2, 4, 1, 1.742956))
sketch1.addConstraint(Sketcher.Constraint("DistanceX", 12, 1, 12, 2, 4.847378))
pad1 = doc.addObject("PartDesign::Pad", "Pad")
body.addObject(pad1)
pad1.Profile = sketch1
pad1.Type = "TwoLengths"
pad1.Length = 172.5
pad1.Length2 = 172.5

# Sketch on XY plane
sketch2 = doc.addObject("Sketcher::SketchObject", "Sketch001")
body.addObject(sketch2)
sketch2.AttachmentSupport = (doc.XY_Plane, [""])
sketch2.MapMode = "FlatFace"
sketch2.AttachmentOffset = App.Placement(Vector(0, 0, 172.5), App.Rotation())
sketch2.addGeometry(Part.Circle(Vector(0, 0, 0), Vector(0, 0, 1), 2), False)
sketch2.addConstraint(Sketcher.Constraint("Coincident", 0, 3, -1, 1))
sketch2.addConstraint(Sketcher.Constraint("Diameter", 0, 4.0))
pocket1 = doc.addObject("PartDesign::Pocket", "Pocket")
body.addObject(pocket1)
pocket1.Profile = sketch2
pocket1.Type = "ThroughAll"
doc.recompute()

chamfer = doc.addObject("PartDesign::Chamfer", "Chamfer")
body.addObject(chamfer)
chamfer.Base = (pocket1, edges_at(pocket1, [(-2, 0, -172.5), (-2, 0, 172.5)]))
chamfer.Size = 0.25

# Sketch on XZ plane
sketch3 = doc.addObject("Sketcher::SketchObject", "Sketch002")
body.addObject(sketch3)
sketch3.AttachmentSupport = (doc.XZ_Plane, [""])
sketch3.MapMode = "FlatFace"
sketch3.AttachmentOffset = App.Placement(Vector(0, 0, -9.999361), App.Rotation())
sketch3.addGeometry(Part.Circle(Vector(0.011509, 143.5, 0), Vector(0, 0, 1), 1.65), False)
sketch3.addConstraint(Sketcher.Constraint("Diameter", 0, 3.3))
sketch3.addConstraint(Sketcher.Constraint("DistanceY", -1, 1, 0, 3, 143.5))
sketch3.addConstraint(Sketcher.Constraint("DistanceX", -1, 1, 0, 3, 0.011509))
pocket2 = doc.addObject("PartDesign::Pocket", "Pocket001")
body.addObject(pocket2)
pocket2.Profile = sketch3
pocket2.Length = 8.886084
pocket2.Reversed = True

# Sketch on XZ plane
sketch4 = doc.addObject("Sketcher::SketchObject", "Sketch003")
body.addObject(sketch4)
sketch4.AttachmentSupport = (doc.XZ_Plane, [""])
sketch4.MapMode = "FlatFace"
sketch4.AttachmentOffset = App.Placement(Vector(0, 0, -9.999361), App.Rotation())
sketch4.addGeometry(Part.Circle(Vector(0.011509, 169.5, 0), Vector(0, 0, 1), 1.65), False)
sketch4.addConstraint(Sketcher.Constraint("Diameter", 0, 3.3))
sketch4.addConstraint(Sketcher.Constraint("DistanceY", -1, 1, 0, 3, 169.5))
sketch4.addConstraint(Sketcher.Constraint("DistanceX", -1, 1, 0, 3, 0.011509))
pocket3 = doc.addObject("PartDesign::Pocket", "Pocket002")
body.addObject(pocket3)
pocket3.Profile = sketch4
pocket3.Length = 8.886084
pocket3.Reversed = True

# Sketch on XZ plane
sketch5 = doc.addObject("Sketcher::SketchObject", "Sketch004")
body.addObject(sketch5)
sketch5.AttachmentSupport = (doc.XZ_Plane, [""])
sketch5.MapMode = "FlatFace"
sketch5.AttachmentOffset = App.Placement(Vector(0, 0, -9.999361), App.Rotation())
sketch5.addGeometry(Part.Circle(Vector(0.011509, -84.2, 0), Vector(0, 0, 1), 1.65), False)
sketch5.addConstraint(Sketcher.Constraint("Diameter", 0, 3.3))
sketch5.addConstraint(Sketcher.Constraint("DistanceY", 0, 3, -1, 1, 84.2))
sketch5.addConstraint(Sketcher.Constraint("DistanceX", -1, 1, 0, 3, 0.011509))
pocket4 = doc.addObject("PartDesign::Pocket", "Pocket003")
body.addObject(pocket4)
pocket4.Profile = sketch5
pocket4.Length = 8.886084
pocket4.Reversed = True

# Sketch on XZ plane
sketch6 = doc.addObject("Sketcher::SketchObject", "Sketch005")
body.addObject(sketch6)
sketch6.AttachmentSupport = (doc.XZ_Plane, [""])
sketch6.MapMode = "FlatFace"
sketch6.AttachmentOffset = App.Placement(Vector(0, 0, -9.999361), App.Rotation())
sketch6.addGeometry(Part.Circle(Vector(0.011509, -163.9, 0), Vector(0, 0, 1), 1.65), False)
sketch6.addConstraint(Sketcher.Constraint("Diameter", 0, 3.3))
sketch6.addConstraint(Sketcher.Constraint("DistanceY", 0, 3, -1, 1, 163.9))
sketch6.addConstraint(Sketcher.Constraint("DistanceX", -1, 1, 0, 3, 0.011509))
pocket5 = doc.addObject("PartDesign::Pocket", "Pocket004")
body.addObject(pocket5)
pocket5.Profile = sketch6
pocket5.Length = 8.886084
pocket5.Reversed = True

# Sketch on XZ plane
sketch7 = doc.addObject("Sketcher::SketchObject", "Sketch006")
body.addObject(sketch7)
sketch7.AttachmentSupport = (doc.XZ_Plane, [""])
sketch7.MapMode = "FlatFace"
sketch7.AttachmentOffset = App.Placement(Vector(0, 0, 9.999047), App.Rotation())
sketch7.addGeometry(Part.Circle(Vector(0, 123.9, 0), Vector(0, 0, 1), 3.3), False)
sketch7.addGeometry(Part.Circle(Vector(0, -106.3, 0), Vector(0, 0, 1), 3.3), False)
sketch7.addConstraint(Sketcher.Constraint("Equal", 0, 1))
sketch7.addConstraint(Sketcher.Constraint("PointOnObject", 0, 3, -2))
sketch7.addConstraint(Sketcher.Constraint("PointOnObject", 1, 3, -2))
sketch7.addConstraint(Sketcher.Constraint("Diameter", 0, 6.6))
sketch7.addConstraint(Sketcher.Constraint("DistanceY", -1, 1, 0, 3, 123.9))
sketch7.addConstraint(Sketcher.Constraint("DistanceY", 1, 3, -1, 1, 106.3))
doc.recompute()
hole = doc.addObject("PartDesign::Hole", "Hole")
body.addObject(hole)
hole.Profile = sketch7
hole.ThreadType = "None"
hole.Diameter = 6.6
hole.DepthType = "ThroughAll"
hole.HoleCutType = "Counterbore"
hole.HoleCutDiameter = 11
hole.HoleCutDepth = 3.9

doc.recompute()
